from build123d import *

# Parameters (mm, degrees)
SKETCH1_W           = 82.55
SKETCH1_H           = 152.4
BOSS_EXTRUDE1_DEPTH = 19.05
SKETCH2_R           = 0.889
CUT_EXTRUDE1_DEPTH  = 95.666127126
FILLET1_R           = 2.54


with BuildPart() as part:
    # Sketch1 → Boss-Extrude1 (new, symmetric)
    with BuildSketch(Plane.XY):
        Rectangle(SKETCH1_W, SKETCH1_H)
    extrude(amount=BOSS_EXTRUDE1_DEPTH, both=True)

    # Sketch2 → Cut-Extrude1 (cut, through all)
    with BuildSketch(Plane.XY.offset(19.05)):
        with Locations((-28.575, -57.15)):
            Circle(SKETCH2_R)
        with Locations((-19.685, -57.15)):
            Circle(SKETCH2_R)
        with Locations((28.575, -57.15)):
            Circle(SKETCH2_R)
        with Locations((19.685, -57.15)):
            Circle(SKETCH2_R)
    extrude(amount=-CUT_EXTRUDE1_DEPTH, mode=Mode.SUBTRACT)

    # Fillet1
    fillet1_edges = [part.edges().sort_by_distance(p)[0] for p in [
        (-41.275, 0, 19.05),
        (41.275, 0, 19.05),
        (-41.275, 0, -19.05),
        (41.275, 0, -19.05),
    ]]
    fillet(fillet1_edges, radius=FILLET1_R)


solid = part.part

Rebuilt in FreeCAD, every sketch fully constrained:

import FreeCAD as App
import Part
import Sketcher
Q = App.Units.Quantity


def edges_at(feature, points):
    """Names of the edges that pass closest to the given points."""
    edges = feature.Shape.Edges
    near = lambda p: min(range(len(edges)), key=lambda i: edges[i].distToShape(Part.Vertex(*p))[0])
    return sorted({f"Edge{near(p) + 1}" for p in points})

doc = App.newDocument("Part")
params = doc.addObject("Spreadsheet::Sheet", "Params")
for row, (alias, value) in enumerate([
    ("sketch1_height", "6 in"),
    ("sketch1_width", "3.25 in"),
    ("pad1_length", "1.5 in"),
    ("sketch2_diameter", "0.07 in"),
    ("fillet_radius", "0.1 in"),
], start=1):
    params.set(f"A{row}", alias)
    params.set(f"B{row}", "=" + value)
    params.setAlias(f"B{row}", alias)

body = doc.addObject("PartDesign::Body", "Body")

sketch1 = body.newObject("Sketcher::SketchObject", "Sketch")
sketch1.AttachmentSupport = (doc.getObject("XY_Plane"), [""])
sketch1.MapMode = "FlatFace"
sketch1.addGeometry([
    Part.LineSegment(App.Vector(-41, 76, 0), App.Vector(-41, -76, 0)),
    Part.LineSegment(App.Vector(-41, -76, 0), App.Vector(41, -76, 0)),
    Part.LineSegment(App.Vector(41, -76, 0), App.Vector(41, 76, 0)),
    Part.LineSegment(App.Vector(41, 76, 0), App.Vector(-41, 76, 0)),
], False)
sketch1.addConstraint([
    Sketcher.Constraint("Coincident", 0, 2, 1, 1),
    Sketcher.Constraint("Coincident", 1, 2, 2, 1),
    Sketcher.Constraint("Coincident", 2, 2, 3, 1),
    Sketcher.Constraint("Coincident", 3, 2, 0, 1),
    Sketcher.Constraint("Vertical", 0),
    Sketcher.Constraint("Horizontal", 1),
    Sketcher.Constraint("Vertical", 2),
    Sketcher.Constraint("Horizontal", 3),
    Sketcher.Constraint("Symmetric", 0, 2, 2, 2, -1, 1),
    Sketcher.Constraint("DistanceY", 0, 2, 0, 1, Q("6 in")),
    Sketcher.Constraint("DistanceX", 1, 1, 1, 2, Q("3.25 in")),
])
sketch1.setExpression("Constraints[9]", "Params.sketch1_height")
sketch1.setExpression("Constraints[10]", "Params.sketch1_width")
pad1 = body.newObject("PartDesign::Pad", "Pad")
pad1.Profile = sketch1
pad1.setExpression("Length", "Params.pad1_length")
pad1.Midplane = True

sketch2 = body.newObject("Sketcher::SketchObject", "Sketch001")
sketch2.AttachmentSupport = (doc.getObject("XY_Plane"), [""])
sketch2.MapMode = "FlatFace"
sketch2.AttachmentOffset = App.Placement(App.Vector(0, 0, 0.75 * 25.4), App.Rotation())
sketch2.addGeometry([
    Part.Circle(App.Vector(-28.6, -57.1, 0), App.Vector(0, 0, 1), 0.9),
    Part.Circle(App.Vector(-19.7, -57.1, 0), App.Vector(0, 0, 1), 0.9),
    Part.Circle(App.Vector(28.6, -57.1, 0), App.Vector(0, 0, 1), 0.9),
    Part.Circle(App.Vector(19.7, -57.1, 0), App.Vector(0, 0, 1), 0.9),
], False)
sketch2.addConstraint([
    Sketcher.Constraint("Equal", 0, 1),
    Sketcher.Constraint("Equal", 1, 2),
    Sketcher.Constraint("Equal", 2, 3),
    Sketcher.Constraint("Symmetric", 0, 3, 2, 3, -2),
    Sketcher.Constraint("Symmetric", 1, 3, 3, 3, -2),
    Sketcher.Constraint("Horizontal", 0, 3, 1, 3),
    Sketcher.Constraint("Diameter", 0, Q("0.07 in")),
    Sketcher.Constraint("DistanceX", 1, 3, 2, 3, Q("1.9 in")),
    Sketcher.Constraint("DistanceY", 0, 3, -1, 1, Q("2.25 in")),
    Sketcher.Constraint("DistanceX", 0, 3, 1, 3, Q("0.35 in")),
])
sketch2.setExpression("Constraints[6]", "Params.sketch2_diameter")
pocket1 = body.newObject("PartDesign::Pocket", "Pocket")
pocket1.Profile = sketch2
pocket1.Type = "ThroughAll"
doc.recompute()

fillet = body.newObject("PartDesign::Fillet", "Fillet")
fillet.Base = (pocket1, edges_at(pocket1, [
    (-41.275, 0, 19.05),
    (41.275, 0, 19.05),
    (-41.275, 0, -19.05),
    (41.275, 0, -19.05),
]))
fillet.setExpression("Radius", "Params.fillet_radius")

doc.recompute()
